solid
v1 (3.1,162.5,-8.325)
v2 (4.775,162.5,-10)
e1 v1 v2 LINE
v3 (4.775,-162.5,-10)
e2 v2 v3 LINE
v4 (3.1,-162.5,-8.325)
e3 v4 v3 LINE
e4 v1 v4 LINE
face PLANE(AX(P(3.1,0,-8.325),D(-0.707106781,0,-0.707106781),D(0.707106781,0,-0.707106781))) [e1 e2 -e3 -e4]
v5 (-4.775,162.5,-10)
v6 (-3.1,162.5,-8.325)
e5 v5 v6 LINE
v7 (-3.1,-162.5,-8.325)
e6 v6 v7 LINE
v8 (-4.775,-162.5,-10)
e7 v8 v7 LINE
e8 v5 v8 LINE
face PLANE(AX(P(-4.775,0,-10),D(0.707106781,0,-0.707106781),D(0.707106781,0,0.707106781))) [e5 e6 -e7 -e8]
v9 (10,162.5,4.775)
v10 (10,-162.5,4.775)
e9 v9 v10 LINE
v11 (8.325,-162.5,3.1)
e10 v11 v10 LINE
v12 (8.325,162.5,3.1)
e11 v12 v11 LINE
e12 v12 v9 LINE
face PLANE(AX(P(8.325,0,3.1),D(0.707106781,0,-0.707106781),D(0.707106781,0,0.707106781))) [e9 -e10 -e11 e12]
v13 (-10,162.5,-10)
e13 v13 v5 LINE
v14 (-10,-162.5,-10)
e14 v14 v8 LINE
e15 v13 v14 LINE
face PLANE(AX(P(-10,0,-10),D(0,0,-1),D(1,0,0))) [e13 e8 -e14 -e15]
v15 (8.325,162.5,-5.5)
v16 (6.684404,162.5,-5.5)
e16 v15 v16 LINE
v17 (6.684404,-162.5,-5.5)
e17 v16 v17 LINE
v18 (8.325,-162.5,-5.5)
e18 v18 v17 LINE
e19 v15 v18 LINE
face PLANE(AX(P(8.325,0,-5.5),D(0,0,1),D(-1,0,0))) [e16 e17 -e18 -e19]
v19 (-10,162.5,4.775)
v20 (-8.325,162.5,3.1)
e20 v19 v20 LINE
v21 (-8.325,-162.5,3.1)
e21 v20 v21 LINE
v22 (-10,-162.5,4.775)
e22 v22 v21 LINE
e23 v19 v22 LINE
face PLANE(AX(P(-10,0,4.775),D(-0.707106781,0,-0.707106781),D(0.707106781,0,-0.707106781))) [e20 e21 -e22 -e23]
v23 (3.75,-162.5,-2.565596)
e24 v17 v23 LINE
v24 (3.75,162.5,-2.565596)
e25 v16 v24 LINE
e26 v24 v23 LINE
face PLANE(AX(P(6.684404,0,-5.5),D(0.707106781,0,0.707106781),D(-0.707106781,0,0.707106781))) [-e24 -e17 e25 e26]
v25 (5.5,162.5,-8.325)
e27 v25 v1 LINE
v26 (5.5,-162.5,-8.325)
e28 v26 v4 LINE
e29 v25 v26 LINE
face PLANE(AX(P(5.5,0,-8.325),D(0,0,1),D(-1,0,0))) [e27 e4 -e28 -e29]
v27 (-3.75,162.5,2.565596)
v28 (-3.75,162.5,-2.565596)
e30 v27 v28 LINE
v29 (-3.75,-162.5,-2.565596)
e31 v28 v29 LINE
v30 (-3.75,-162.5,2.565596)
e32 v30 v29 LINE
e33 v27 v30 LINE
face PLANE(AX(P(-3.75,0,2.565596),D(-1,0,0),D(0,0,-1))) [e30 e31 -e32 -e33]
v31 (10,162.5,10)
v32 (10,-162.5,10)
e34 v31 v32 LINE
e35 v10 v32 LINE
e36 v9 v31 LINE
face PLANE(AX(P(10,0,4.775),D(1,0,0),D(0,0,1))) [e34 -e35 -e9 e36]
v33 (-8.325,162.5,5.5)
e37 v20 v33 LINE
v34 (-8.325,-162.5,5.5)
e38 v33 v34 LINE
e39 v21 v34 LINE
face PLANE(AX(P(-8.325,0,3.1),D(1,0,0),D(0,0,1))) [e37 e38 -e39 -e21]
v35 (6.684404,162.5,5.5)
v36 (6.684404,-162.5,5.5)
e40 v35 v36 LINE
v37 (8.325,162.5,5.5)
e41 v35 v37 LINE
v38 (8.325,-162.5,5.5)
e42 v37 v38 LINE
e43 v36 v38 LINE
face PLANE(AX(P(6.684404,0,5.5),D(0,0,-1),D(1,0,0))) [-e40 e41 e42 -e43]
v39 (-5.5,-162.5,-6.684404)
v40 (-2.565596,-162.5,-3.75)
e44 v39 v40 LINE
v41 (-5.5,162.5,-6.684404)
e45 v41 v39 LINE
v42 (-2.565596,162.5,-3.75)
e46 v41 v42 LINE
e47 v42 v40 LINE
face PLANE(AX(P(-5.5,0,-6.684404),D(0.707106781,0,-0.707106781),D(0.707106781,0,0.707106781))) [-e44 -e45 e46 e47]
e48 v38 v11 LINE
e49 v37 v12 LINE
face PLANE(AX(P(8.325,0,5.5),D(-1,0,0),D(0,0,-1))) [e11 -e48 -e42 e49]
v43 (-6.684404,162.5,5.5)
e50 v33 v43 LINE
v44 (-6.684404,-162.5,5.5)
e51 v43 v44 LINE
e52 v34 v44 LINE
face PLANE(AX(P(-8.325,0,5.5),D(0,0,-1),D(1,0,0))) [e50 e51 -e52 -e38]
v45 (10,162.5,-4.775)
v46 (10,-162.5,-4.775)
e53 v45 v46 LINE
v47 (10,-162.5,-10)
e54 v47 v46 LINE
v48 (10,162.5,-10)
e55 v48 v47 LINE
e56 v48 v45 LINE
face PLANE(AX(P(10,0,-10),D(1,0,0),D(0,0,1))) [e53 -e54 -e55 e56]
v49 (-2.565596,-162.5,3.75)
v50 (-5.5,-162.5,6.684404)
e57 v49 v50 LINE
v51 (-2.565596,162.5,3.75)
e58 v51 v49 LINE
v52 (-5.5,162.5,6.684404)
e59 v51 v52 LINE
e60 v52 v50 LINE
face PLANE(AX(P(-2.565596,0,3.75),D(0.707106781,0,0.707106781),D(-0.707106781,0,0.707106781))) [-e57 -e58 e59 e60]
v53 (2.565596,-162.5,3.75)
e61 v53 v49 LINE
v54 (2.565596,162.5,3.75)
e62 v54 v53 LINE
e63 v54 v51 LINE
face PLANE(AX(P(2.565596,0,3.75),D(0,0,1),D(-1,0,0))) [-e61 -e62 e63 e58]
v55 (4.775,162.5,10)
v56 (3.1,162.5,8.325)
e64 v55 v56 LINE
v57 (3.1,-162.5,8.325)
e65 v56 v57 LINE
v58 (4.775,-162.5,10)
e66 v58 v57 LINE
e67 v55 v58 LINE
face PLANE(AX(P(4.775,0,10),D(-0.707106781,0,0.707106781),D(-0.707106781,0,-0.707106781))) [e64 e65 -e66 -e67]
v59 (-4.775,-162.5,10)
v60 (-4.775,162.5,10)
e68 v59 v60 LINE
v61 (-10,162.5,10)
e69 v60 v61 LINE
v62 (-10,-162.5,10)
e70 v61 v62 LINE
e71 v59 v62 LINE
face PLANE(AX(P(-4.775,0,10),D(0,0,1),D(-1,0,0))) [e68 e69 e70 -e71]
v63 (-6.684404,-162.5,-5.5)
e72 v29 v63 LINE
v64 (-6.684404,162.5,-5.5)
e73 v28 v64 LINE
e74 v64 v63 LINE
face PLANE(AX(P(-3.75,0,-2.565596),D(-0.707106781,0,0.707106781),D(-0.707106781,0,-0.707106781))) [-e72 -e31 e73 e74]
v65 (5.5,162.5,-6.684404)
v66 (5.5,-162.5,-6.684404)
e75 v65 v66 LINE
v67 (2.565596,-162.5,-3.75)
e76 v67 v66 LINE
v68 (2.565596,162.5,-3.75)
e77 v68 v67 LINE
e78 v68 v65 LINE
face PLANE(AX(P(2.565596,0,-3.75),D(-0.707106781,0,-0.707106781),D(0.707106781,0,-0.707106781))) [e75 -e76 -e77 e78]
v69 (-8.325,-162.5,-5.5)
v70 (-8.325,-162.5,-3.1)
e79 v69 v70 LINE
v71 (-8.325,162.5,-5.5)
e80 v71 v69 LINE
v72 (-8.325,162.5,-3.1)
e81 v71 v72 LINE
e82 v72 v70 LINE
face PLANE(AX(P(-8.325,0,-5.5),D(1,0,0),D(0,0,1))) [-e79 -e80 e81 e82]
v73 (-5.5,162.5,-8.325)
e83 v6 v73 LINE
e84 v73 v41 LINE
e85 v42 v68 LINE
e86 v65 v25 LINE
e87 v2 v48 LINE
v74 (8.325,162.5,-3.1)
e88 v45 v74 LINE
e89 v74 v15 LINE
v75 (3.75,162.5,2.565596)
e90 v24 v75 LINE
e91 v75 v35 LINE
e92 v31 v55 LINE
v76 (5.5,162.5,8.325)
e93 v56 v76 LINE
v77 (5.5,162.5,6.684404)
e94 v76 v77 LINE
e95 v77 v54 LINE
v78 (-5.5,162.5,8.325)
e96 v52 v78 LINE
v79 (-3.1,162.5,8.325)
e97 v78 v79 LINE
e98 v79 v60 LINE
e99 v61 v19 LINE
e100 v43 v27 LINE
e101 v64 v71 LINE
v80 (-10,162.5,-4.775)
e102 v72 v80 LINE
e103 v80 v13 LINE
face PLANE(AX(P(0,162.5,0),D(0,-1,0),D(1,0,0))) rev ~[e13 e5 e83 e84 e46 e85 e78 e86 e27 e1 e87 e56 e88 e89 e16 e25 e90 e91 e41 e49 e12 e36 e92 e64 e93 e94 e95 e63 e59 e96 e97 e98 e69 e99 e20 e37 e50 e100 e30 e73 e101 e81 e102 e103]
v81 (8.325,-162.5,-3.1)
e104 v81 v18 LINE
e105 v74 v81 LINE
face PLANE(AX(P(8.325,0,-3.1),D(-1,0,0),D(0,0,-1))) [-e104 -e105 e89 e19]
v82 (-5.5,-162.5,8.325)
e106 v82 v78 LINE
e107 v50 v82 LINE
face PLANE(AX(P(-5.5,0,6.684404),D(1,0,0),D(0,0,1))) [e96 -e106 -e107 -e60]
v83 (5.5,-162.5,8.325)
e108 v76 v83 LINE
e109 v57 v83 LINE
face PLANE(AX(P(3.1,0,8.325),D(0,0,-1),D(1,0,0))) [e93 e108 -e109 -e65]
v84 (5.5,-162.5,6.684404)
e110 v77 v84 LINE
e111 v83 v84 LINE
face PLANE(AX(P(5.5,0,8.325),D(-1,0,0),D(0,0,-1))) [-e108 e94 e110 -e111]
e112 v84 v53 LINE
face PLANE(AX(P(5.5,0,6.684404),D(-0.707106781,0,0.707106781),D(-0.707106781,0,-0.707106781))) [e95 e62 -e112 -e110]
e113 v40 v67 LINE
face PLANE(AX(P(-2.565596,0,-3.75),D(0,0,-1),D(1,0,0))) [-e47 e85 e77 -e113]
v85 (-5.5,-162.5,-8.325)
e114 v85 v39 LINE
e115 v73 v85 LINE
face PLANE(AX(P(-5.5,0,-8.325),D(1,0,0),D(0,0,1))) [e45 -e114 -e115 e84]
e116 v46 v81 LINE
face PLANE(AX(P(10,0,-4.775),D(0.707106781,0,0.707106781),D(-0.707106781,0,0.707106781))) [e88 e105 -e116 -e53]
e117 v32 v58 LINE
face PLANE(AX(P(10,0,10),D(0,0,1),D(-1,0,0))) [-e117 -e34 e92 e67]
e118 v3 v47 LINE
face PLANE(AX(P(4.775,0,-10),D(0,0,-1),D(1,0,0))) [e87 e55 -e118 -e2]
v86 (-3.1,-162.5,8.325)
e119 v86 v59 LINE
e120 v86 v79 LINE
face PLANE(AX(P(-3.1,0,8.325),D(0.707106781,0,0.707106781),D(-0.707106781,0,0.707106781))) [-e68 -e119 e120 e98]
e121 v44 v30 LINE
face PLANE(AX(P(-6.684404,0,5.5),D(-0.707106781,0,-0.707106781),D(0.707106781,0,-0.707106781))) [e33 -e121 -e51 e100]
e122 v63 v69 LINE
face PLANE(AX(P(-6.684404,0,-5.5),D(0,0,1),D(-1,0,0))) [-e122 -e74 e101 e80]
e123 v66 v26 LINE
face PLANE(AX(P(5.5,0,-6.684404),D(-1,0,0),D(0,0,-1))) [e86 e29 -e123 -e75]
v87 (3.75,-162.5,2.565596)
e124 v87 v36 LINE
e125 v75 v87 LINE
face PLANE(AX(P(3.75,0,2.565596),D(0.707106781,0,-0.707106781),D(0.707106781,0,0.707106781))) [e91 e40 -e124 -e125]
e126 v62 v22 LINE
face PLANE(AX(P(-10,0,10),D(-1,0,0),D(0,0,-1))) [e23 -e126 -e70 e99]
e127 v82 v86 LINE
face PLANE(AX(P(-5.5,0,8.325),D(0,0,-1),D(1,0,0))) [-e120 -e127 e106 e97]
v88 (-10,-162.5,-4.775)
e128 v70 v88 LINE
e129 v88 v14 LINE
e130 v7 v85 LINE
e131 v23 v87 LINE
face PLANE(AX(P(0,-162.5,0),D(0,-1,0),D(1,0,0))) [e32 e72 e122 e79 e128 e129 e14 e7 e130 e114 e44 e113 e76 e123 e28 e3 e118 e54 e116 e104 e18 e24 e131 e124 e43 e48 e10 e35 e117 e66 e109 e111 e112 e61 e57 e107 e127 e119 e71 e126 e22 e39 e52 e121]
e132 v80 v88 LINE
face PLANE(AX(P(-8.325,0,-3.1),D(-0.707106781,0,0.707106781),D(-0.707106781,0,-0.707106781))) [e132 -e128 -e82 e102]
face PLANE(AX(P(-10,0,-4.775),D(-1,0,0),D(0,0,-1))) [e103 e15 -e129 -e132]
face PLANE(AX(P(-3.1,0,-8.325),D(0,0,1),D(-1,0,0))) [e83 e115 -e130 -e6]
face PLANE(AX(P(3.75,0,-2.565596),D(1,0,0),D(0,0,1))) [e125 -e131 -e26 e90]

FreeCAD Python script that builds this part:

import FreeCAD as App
import Part
import Sketcher


def add_polygon(sketch, points):
    """Adds a closed chain of lines whose ends are joined by coincident constraints."""
    first, n = sketch.GeometryCount, len(points)
    for a, b in zip(points, points[1:] + points[:1]):
        sketch.addGeometry(Part.LineSegment(App.Vector(*a, 0), App.Vector(*b, 0)), False)
    for i in range(n):
        sketch.addConstraint(Sketcher.Constraint("Coincident", first + i, 2, first + (i + 1) % n, 1))

doc = App.newDocument("Part")
body = doc.addObject("PartDesign::Body", "Body")

# Sketch on XZ plane
sketch1 = body.newObject("Sketcher::SketchObject", "Sketch")
sketch1.AttachmentSupport = (doc.getObject("XZ_Plane"), [""])
sketch1.MapMode = "FlatFace"
add_polygon(sketch1, [(-4.8, 10), (-10, 10), (-10, 4.8), (-8.3, 3.1), (-8.3, 5.5), (-6.7, 5.5), (-3.8, 2.6), (-3.8, -2.6), (-6.7, -5.5), (-8.3, -5.5), (-8.3, -3.1), (-10, -4.8), (-10, -10), (-4.8, -10), (-3.1, -8.3), (-5.5, -8.3), (-5.5, -6.7), (-2.6, -3.8), (2.6, -3.8), (5.5, -6.7), (5.5, -8.3), (3.1, -8.3), (4.8, -10), (10, -10), (10, -4.8), (8.3, -3.1), (8.3, -5.5), (6.7, -5.5), (3.8, -2.6), (3.8, 2.6), (6.7, 5.5), (8.3, 5.5), (8.3, 3.1), (10, 4.8), (10, 10), (4.8, 10), (3.1, 8.3), (5.5, 8.3), (5.5, 6.7), (2.6, 3.8), (-2.6, 3.8), (-5.5, 6.7), (-5.5, 8.3), (-3.1, 8.3)])  # lines 0-43
sketch1.addConstraint(Sketcher.Constraint("Horizontal", 0))
sketch1.addConstraint(Sketcher.Constraint("Vertical", 1))
sketch1.addConstraint(Sketcher.Constraint("Vertical", 3))
sketch1.addConstraint(Sketcher.Constraint("Horizontal", 4))
sketch1.addConstraint(Sketcher.Constraint("Vertical", 6))
sketch1.addConstraint(Sketcher.Constraint("Horizontal", 8))
sketch1.addConstraint(Sketcher.Constraint("Vertical", 9))
sketch1.addConstraint(Sketcher.Constraint("Vertical", 11))
sketch1.addConstraint(Sketcher.Constraint("Horizontal", 12))
sketch1.addConstraint(Sketcher.Constraint("Horizontal", 14))
sketch1.addConstraint(Sketcher.Constraint("Vertical", 15))
sketch1.addConstraint(Sketcher.Constraint("Horizontal", 17))
sketch1.addConstraint(Sketcher.Constraint("Vertical", 19))
sketch1.addConstraint(Sketcher.Constraint("Horizontal", 20))
sketch1.addConstraint(Sketcher.Constraint("Horizontal", 22))
sketch1.addConstraint(Sketcher.Constraint("Vertical", 23))
sketch1.addConstraint(Sketcher.Constraint("Vertical", 25))
sketch1.addConstraint(Sketcher.Constraint("Horizontal", 26))
sketch1.addConstraint(Sketcher.Constraint("Vertical", 28))
sketch1.addConstraint(Sketcher.Constraint("Horizontal", 30))
sketch1.addConstraint(Sketcher.Constraint("Vertical", 31))
sketch1.addConstraint(Sketcher.Constraint("Vertical", 33))
sketch1.addConstraint(Sketcher.Constraint("Horizontal", 34))
sketch1.addConstraint(Sketcher.Constraint("Horizontal", 36))
sketch1.addConstraint(Sketcher.Constraint("Vertical", 37))
sketch1.addConstraint(Sketcher.Constraint("Horizontal", 39))
sketch1.addConstraint(Sketcher.Constraint("Vertical", 41))
sketch1.addConstraint(Sketcher.Constraint("Horizontal", 42))
sketch1.addConstraint(Sketcher.Constraint("Symmetric", 0, 2, 22, 2, -1, 1))
sketch1.addConstraint(Sketcher.Constraint("Symmetric", 2, 2, 24, 2, -1, 1))
sketch1.addConstraint(Sketcher.Constraint("Symmetric", 4, 2, 26, 2, -1, 1))
sketch1.addConstraint(Sketcher.Constraint("Symmetric", 5, 2, 27, 2, -1, 1))
sketch1.addConstraint(Sketcher.Constraint("Symmetric", 7, 2, 29, 2, -1, 1))
sketch1.addConstraint(Sketcher.Constraint("Symmetric", 9, 2, 31, 2, -1, 1))
sketch1.addConstraint(Sketcher.Constraint("Symmetric", 10, 2, 32, 2, -1, 1))
sketch1.addConstraint(Sketcher.Constraint("Symmetric", 12, 2, 34, 2, -1, 1))
sketch1.addConstraint(Sketcher.Constraint("Symmetric", 13, 2, 35, 2, -1, 1))
sketch1.addConstraint(Sketcher.Constraint("Symmetric", 15, 2, 37, 2, -1, 1))
sketch1.addConstraint(Sketcher.Constraint("Symmetric", 16, 2, 38, 2, -1, 1))
sketch1.addConstraint(Sketcher.Constraint("Symmetric", 18, 2, 40, 2, -1, 1))
sketch1.addConstraint(Sketcher.Constraint("Symmetric", 20, 2, 42, 2, -1, 1))
sketch1.addConstraint(Sketcher.Constraint("Symmetric", 15, 2, 18, 2, -2))
sketch1.addConstraint(Sketcher.Constraint("Symmetric", 13, 2, 20, 2, -2))
sketch1.addConstraint(Sketcher.Constraint("Symmetric", 12, 2, 21, 2, -2))
sketch1.addConstraint(Sketcher.Constraint("Symmetric", 10, 2, 23, 2, -2))
sketch1.addConstraint(Sketcher.Constraint("Symmetric", 9, 2, 24, 2, -2))
sketch1.addConstraint(Sketcher.Constraint("Symmetric", 7, 2, 26, 2, -2))
sketch1.addConstraint(Sketcher.Constraint("Parallel", 2, 5))
sketch1.addConstraint(Sketcher.Constraint("Perpendicular", 5, 7))
sketch1.addConstraint(Sketcher.Constraint("Parallel", 7, 10))
sketch1.addConstraint(Sketcher.Constraint("Parallel", 10, 13))
sketch1.addConstraint(Sketcher.Constraint("Parallel", 13, 16))
sketch1.addConstraint(Sketcher.Constraint("Perpendicular", 16, 18))
sketch1.addConstraint(Sketcher.Constraint("Parallel", 18, 21))
sketch1.addConstraint(Sketcher.Constraint("Perpendicular", 27, 29))
sketch1.addConstraint(Sketcher.Constraint("Perpendicular", 38, 40))
sketch1.addConstraint(Sketcher.Constraint("Parallel", 40, 43))
sketch1.addConstraint(Sketcher.Constraint("Equal", 34, 1))
sketch1.addConstraint(Sketcher.Constraint("Equal", 42, 3))
sketch1.addConstraint(Sketcher.Constraint("Equal", 39, 6))
sketch1.addConstraint(Sketcher.Constraint("Equal", 30, 15))
sketch1.addConstraint(Sketcher.Constraint("Equal", 10, 13))
sketch1.addConstraint(Sketcher.Constraint("Equal", 7, 16))
sketch1.addConstraint(Sketcher.Constraint("DistanceX", 14, 2, 14, 1, 2.4))
sketch1.addConstraint(Sketcher.Constraint("DistanceX", 0, 2, -1, 1, 10.0))
sketch1.addConstraint(Sketcher.Constraint("DistanceY", 7, 2, 4, 2, 11.0))
sketch1.addConstraint(Sketcher.Constraint("DistanceX", 5, 2, 28, 2, 7.5))
sketch1.addConstraint(Sketcher.Constraint("DistanceX", 0, 2, 0, 1, 5.225))
sketch1.addConstraint(Sketcher.Constraint("DistanceX", 4, 1, 4, 2, 1.640596))
pad1 = body.newObject("PartDesign::Pad", "Pad")
pad1.Profile = sketch1
pad1.Length = 325
pad1.Midplane = True

doc.recompute()
